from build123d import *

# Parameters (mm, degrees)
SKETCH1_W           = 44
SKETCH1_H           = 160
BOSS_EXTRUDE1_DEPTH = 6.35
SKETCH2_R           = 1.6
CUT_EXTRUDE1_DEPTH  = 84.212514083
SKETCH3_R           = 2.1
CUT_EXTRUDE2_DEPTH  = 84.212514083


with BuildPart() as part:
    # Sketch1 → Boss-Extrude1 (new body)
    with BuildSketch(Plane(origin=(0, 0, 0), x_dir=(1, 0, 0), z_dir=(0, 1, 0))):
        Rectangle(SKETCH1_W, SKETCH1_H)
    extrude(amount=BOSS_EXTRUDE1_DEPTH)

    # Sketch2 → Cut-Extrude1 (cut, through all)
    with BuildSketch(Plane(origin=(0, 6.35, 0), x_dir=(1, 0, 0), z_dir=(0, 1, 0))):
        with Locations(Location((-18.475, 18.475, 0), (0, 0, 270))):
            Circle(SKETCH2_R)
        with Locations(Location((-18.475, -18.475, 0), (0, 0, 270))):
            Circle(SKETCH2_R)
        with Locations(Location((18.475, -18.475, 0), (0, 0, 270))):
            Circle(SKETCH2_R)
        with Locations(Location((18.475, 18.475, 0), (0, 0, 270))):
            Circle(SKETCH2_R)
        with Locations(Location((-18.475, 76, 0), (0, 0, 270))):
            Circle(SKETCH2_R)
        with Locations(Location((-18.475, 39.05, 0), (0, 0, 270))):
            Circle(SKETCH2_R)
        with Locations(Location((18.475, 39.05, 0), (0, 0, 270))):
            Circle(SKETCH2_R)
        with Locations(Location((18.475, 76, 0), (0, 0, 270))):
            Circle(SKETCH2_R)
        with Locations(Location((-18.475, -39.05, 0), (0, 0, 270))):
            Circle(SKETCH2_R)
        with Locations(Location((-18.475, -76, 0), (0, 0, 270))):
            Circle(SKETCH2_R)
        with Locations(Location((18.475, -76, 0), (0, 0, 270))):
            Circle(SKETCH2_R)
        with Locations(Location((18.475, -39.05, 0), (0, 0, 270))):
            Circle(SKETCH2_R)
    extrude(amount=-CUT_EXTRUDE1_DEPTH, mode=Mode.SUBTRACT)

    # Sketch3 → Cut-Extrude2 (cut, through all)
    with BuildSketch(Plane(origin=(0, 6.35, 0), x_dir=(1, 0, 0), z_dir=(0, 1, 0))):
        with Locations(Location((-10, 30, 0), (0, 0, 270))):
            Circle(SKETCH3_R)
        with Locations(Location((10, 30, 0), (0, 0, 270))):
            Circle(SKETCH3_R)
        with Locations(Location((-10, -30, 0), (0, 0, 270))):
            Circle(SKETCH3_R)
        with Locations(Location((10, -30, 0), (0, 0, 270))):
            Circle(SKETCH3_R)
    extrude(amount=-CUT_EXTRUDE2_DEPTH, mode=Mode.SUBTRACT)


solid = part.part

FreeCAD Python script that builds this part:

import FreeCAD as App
import Part
import Sketcher

V = App.Vector

doc = App.newDocument("Part")
body = doc.addObject("PartDesign::Body", "Body")

# Sketch on XZ plane
sketch1 = body.newObject("Sketcher::SketchObject", "Sketch")
sketch1.AttachmentSupport = (doc.getObject("XZ_Plane"), [""])
sketch1.MapMode = "FlatFace"
sketch1.addGeometry(Part.LineSegment(V(-22, -80, 0), V(-22, 80, 0)), False)
sketch1.addGeometry(Part.LineSegment(V(-22, 80, 0), V(22, 80, 0)), False)
sketch1.addGeometry(Part.LineSegment(V(22, 80, 0), V(22, -80, 0)), False)
sketch1.addGeometry(Part.LineSegment(V(22, -80, 0), V(-22, -80, 0)), False)
sketch1.addConstraint(Sketcher.Constraint("Coincident", 0, 2, 1, 1))
sketch1.addConstraint(Sketcher.Constraint("Coincident", 1, 2, 2, 1))
sketch1.addConstraint(Sketcher.Constraint("Coincident", 2, 2, 3, 1))
sketch1.addConstraint(Sketcher.Constraint("Coincident", 3, 2, 0, 1))
sketch1.addConstraint(Sketcher.Constraint("Vertical", 0))
sketch1.addConstraint(Sketcher.Constraint("Horizontal", 1))
sketch1.addConstraint(Sketcher.Constraint("Vertical", 2))
sketch1.addConstraint(Sketcher.Constraint("Horizontal", 3))
sketch1.addConstraint(Sketcher.Constraint("Symmetric", 0, 2, 2, 2, -1, 1))
sketch1.addConstraint(Sketcher.Constraint("DistanceX", 1, 1, 1, 2, 44.0))
sketch1.addConstraint(Sketcher.Constraint("DistanceY", 0, 1, 0, 2, 160.0))
pad1 = body.newObject("PartDesign::Pad", "Pad")
pad1.Profile = sketch1
pad1.Length = 6.35
pad1.Reversed = True

# Sketch on XZ plane
sketch2 = body.newObject("Sketcher::SketchObject", "Sketch001")
sketch2.AttachmentSupport = (doc.getObject("XZ_Plane"), [""])
sketch2.MapMode = "FlatFace"
sketch2.AttachmentOffset = App.Placement(V(0, 0, -6.35), App.Rotation())
sketch2.addGeometry(Part.Circle(V(-18.5, -18.5, 0), V(0, 0, 1), 1.6), False)
sketch2.addGeometry(Part.Circle(V(-18.5, 18.5, 0), V(0, 0, 1), 1.6), False)
sketch2.addGeometry(Part.Circle(V(18.5, 18.5, 0), V(0, 0, 1), 1.6), False)
sketch2.addGeometry(Part.Circle(V(18.5, -18.5, 0), V(0, 0, 1), 1.6), False)
sketch2.addGeometry(Part.Circle(V(-18.5, -76, 0), V(0, 0, 1), 1.6), False)
sketch2.addGeometry(Part.Circle(V(-18.5, -39, 0), V(0, 0, 1), 1.6), False)
sketch2.addGeometry(Part.Circle(V(18.5, -39, 0), V(0, 0, 1), 1.6), False)
sketch2.addGeometry(Part.Circle(V(18.5, -76, 0), V(0, 0, 1), 1.6), False)
sketch2.addGeometry(Part.Circle(V(-18.5, 39, 0), V(0, 0, 1), 1.6), False)
sketch2.addGeometry(Part.Circle(V(-18.5, 76, 0), V(0, 0, 1), 1.6), False)
sketch2.addGeometry(Part.Circle(V(18.5, 76, 0), V(0, 0, 1), 1.6), False)
sketch2.addGeometry(Part.Circle(V(18.5, 39, 0), V(0, 0, 1), 1.6), False)
sketch2.addConstraint(Sketcher.Constraint("Equal", 0, 1))
sketch2.addConstraint(Sketcher.Constraint("Equal", 1, 2))
sketch2.addConstraint(Sketcher.Constraint("Equal", 2, 3))
sketch2.addConstraint(Sketcher.Constraint("Equal", 3, 4))
sketch2.addConstraint(Sketcher.Constraint("Equal", 4, 5))
sketch2.addConstraint(Sketcher.Constraint("Equal", 5, 6))
sketch2.addConstraint(Sketcher.Constraint("Equal", 6, 7))
sketch2.addConstraint(Sketcher.Constraint("Equal", 7, 8))
sketch2.addConstraint(Sketcher.Constraint("Equal", 8, 9))
sketch2.addConstraint(Sketcher.Constraint("Equal", 9, 10))
sketch2.addConstraint(Sketcher.Constraint("Equal", 10, 11))
sketch2.addConstraint(Sketcher.Constraint("Symmetric", 0, 3, 2, 3, -1, 1))
sketch2.addConstraint(Sketcher.Constraint("Symmetric", 1, 3, 3, 3, -1, 1))
sketch2.addConstraint(Sketcher.Constraint("Symmetric", 6, 3, 8, 3, -1, 1))
sketch2.addConstraint(Sketcher.Constraint("Symmetric", 7, 3, 9, 3, -1, 1))
sketch2.addConstraint(Sketcher.Constraint("Symmetric", 4, 3, 10, 3, -1, 1))
sketch2.addConstraint(Sketcher.Constraint("Symmetric", 5, 3, 11, 3, -1, 1))
sketch2.addConstraint(Sketcher.Constraint("Symmetric", 1, 3, 2, 3, -2))
sketch2.addConstraint(Sketcher.Constraint("Symmetric", 5, 3, 6, 3, -2))
sketch2.addConstraint(Sketcher.Constraint("Symmetric", 4, 3, 7, 3, -2))
sketch2.addConstraint(Sketcher.Constraint("Vertical", 1, 3, 4, 3))
sketch2.addConstraint(Sketcher.Constraint("Vertical", 4, 3, 5, 3))
sketch2.addConstraint(Sketcher.Constraint("Diameter", 0, 3.2))
sketch2.addConstraint(Sketcher.Constraint("DistanceY", 4, 3, -1, 1, 76.0))
sketch2.addConstraint(Sketcher.Constraint("DistanceY", 5, 3, 8, 3, 78.1))
sketch2.addConstraint(Sketcher.Constraint("DistanceY", 0, 3, 1, 3, 36.95))
sketch2.addConstraint(Sketcher.Constraint("DistanceX", 1, 3, 2, 3, 36.95))
pocket1 = body.newObject("PartDesign::Pocket", "Pocket")
pocket1.Profile = sketch2
pocket1.Type = "ThroughAll"
pocket1.Reversed = True

# Sketch on XZ plane
sketch3 = body.newObject("Sketcher::SketchObject", "Sketch002")
sketch3.AttachmentSupport = (doc.getObject("XZ_Plane"), [""])
sketch3.MapMode = "FlatFace"
sketch3.AttachmentOffset = App.Placement(V(0, 0, -6.35), App.Rotation())
sketch3.addGeometry(Part.Circle(V(-10, -30, 0), V(0, 0, 1), 2.1), False)
sketch3.addGeometry(Part.Circle(V(10, -30, 0), V(0, 0, 1), 2.1), False)
sketch3.addGeometry(Part.Circle(V(-10, 30, 0), V(0, 0, 1), 2.1), False)
sketch3.addGeometry(Part.Circle(V(10, 30, 0), V(0, 0, 1), 2.1), False)
sketch3.addConstraint(Sketcher.Constraint("Equal", 0, 1))
sketch3.addConstraint(Sketcher.Constraint("Equal", 1, 2))
sketch3.addConstraint(Sketcher.Constraint("Equal", 2, 3))
sketch3.addConstraint(Sketcher.Constraint("Symmetric", 1, 3, 2, 3, -1, 1))
sketch3.addConstraint(Sketcher.Constraint("Symmetric", 0, 3, 3, 3, -1, 1))
sketch3.addConstraint(Sketcher.Constraint("Symmetric", 0, 3, 1, 3, -2))
sketch3.addConstraint(Sketcher.Constraint("Diameter", 0, 4.2))
sketch3.addConstraint(Sketcher.Constraint("DistanceX", 0, 3, -1, 1, 10.0))
sketch3.addConstraint(Sketcher.Constraint("DistanceY", 0, 3, -1, 1, 30.0))
pocket2 = body.newObject("PartDesign::Pocket", "Pocket001")
pocket2.Profile = sketch3
pocket2.Type = "ThroughAll"
pocket2.Reversed = True

doc.recompute()
